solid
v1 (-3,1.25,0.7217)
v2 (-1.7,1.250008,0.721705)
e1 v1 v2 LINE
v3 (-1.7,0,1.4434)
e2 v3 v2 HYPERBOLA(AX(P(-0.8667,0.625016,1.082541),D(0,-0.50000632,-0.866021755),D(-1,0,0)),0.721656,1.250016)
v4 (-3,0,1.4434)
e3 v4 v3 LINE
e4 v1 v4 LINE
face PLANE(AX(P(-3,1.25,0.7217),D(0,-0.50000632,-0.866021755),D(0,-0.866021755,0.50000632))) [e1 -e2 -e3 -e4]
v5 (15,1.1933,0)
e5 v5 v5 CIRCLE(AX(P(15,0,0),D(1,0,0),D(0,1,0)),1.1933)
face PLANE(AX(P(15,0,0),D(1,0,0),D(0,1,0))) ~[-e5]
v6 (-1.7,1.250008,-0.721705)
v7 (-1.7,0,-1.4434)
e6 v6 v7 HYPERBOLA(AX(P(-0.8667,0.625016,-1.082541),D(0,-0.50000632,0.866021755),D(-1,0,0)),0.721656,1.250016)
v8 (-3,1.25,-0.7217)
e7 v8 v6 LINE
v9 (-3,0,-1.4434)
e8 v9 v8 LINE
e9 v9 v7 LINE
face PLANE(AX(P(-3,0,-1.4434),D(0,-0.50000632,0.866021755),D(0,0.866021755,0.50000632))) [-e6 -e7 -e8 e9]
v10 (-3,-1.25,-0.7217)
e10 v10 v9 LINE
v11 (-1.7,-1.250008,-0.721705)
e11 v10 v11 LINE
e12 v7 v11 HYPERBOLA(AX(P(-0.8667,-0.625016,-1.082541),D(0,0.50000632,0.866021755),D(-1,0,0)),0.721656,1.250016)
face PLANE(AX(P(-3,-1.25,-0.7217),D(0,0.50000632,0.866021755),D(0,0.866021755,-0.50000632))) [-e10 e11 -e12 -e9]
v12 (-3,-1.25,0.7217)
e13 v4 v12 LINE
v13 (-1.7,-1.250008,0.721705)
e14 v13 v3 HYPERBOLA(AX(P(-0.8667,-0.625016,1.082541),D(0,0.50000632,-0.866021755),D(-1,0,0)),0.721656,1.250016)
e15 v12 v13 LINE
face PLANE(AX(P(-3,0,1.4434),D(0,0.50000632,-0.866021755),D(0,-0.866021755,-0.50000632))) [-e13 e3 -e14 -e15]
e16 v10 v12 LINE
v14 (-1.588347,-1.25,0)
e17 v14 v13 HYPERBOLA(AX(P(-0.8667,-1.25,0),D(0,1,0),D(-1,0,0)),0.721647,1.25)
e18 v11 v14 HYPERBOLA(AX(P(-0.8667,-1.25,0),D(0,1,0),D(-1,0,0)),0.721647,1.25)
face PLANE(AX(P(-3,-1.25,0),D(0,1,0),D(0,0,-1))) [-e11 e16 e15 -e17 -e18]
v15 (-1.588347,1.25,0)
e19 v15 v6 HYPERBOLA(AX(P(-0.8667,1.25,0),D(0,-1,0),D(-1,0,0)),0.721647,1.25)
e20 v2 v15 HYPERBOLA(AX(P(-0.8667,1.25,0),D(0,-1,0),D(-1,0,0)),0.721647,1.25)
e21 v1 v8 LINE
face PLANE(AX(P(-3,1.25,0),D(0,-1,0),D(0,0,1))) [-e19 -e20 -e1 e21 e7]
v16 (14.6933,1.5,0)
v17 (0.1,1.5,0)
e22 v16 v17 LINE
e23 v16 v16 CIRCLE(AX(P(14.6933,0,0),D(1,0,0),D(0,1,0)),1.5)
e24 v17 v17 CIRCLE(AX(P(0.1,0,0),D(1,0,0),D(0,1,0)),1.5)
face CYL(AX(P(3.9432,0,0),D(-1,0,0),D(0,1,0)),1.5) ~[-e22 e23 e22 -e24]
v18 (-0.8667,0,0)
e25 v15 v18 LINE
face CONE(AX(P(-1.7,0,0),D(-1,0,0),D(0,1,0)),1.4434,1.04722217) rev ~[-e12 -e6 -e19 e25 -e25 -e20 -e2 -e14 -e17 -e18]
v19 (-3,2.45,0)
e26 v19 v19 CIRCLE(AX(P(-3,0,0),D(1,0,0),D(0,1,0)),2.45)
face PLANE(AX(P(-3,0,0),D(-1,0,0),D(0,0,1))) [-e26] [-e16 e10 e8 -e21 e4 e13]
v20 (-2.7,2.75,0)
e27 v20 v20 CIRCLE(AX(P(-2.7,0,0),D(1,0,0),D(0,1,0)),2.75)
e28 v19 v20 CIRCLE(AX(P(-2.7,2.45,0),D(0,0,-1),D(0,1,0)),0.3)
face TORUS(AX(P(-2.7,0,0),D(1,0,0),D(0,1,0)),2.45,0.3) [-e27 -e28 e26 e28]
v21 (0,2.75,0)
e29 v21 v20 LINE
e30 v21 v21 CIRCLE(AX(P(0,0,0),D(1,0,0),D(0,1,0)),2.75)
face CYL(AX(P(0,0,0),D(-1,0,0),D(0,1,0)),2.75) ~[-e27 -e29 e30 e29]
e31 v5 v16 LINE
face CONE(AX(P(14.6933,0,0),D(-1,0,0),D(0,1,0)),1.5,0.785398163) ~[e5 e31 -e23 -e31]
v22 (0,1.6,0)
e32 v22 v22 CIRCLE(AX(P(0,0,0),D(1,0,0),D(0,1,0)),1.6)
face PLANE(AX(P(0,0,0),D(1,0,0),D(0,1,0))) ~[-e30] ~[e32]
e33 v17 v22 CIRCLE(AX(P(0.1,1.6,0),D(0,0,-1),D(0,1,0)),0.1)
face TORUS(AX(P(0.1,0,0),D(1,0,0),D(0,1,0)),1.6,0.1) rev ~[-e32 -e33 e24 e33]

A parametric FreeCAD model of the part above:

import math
import FreeCAD as App
import Part
import Sketcher
from FreeCAD import Vector
Q = App.Units.Quantity


def edges_at(feature, points):
    """Names of the edges that pass closest to the given points."""
    edges = feature.Shape.Edges
    near = lambda p: min(range(len(edges)), key=lambda i: edges[i].distToShape(Part.Vertex(*p))[0])
    return sorted({f"Edge{near(p) + 1}" for p in points})

doc = App.newDocument("Part")
params = doc.addObject("Spreadsheet::Sheet", "Params")
for row, (alias, value) in enumerate([
    ("sketch1_width", "15 mm"),
    ("sketch1_width2", "3 mm"),
    ("sketch1_width3", "1.3 mm"),
    ("sketch1_height", "1.5 mm"),
    ("sketch1_height2", "1.25 mm"),
    ("revolution_angle", "360 deg"),
    ("fillet_radius", "0.3 mm"),
    ("chamfer_size", "0.3067 mm"),
    ("chamfer_size2", "0.3067 mm"),
    ("fillet2_radius", "0.1 mm"),
], start=1):
    params.set(f"A{row}", alias)
    params.set(f"B{row}", "=" + value)
    params.setAlias(f"B{row}", alias)

body = doc.addObject("PartDesign::Body", "Body")

sketch1 = doc.addObject("Sketcher::SketchObject", "Sketch")
body.addObject(sketch1)
sketch1.AttachmentSupport = (doc.XY_Plane, [""])
sketch1.MapMode = "FlatFace"
sketch1.addGeometry(Part.LineSegment(Vector(-1.7, 1.4, 0), Vector(-0.9, 0, 0)), False)
sketch1.addGeometry(Part.LineSegment(Vector(-0.9, 0, 0), Vector(15, 0, 0)), False)
sketch1.addGeometry(Part.LineSegment(Vector(15, 0, 0), Vector(15, 1.5, 0)), False)
sketch1.addGeometry(Part.LineSegment(Vector(15, 1.5, 0), Vector(0, 1.5, 0)), False)
sketch1.addGeometry(Part.LineSegment(Vector(0, 1.5, 0), Vector(0, 2.8, 0)), False)
sketch1.addGeometry(Part.LineSegment(Vector(0, 2.8, 0), Vector(-3, 2.8, 0)), False)
sketch1.addGeometry(Part.LineSegment(Vector(-3, 2.8, 0), Vector(-3, 1.4, 0)), False)
sketch1.addGeometry(Part.LineSegment(Vector(-3, 1.4, 0), Vector(-1.7, 1.4, 0)), False)
sketch1.addConstraint(Sketcher.Constraint("Coincident", 0, 2, 1, 1))
sketch1.addConstraint(Sketcher.Constraint("Coincident", 1, 2, 2, 1))
sketch1.addConstraint(Sketcher.Constraint("Coincident", 2, 2, 3, 1))
sketch1.addConstraint(Sketcher.Constraint("Coincident", 3, 2, 4, 1))
sketch1.addConstraint(Sketcher.Constraint("Coincident", 4, 2, 5, 1))
sketch1.addConstraint(Sketcher.Constraint("Coincident", 5, 2, 6, 1))
sketch1.addConstraint(Sketcher.Constraint("Coincident", 6, 2, 7, 1))
sketch1.addConstraint(Sketcher.Constraint("Coincident", 7, 2, 0, 1))
sketch1.addConstraint(Sketcher.Constraint("Horizontal", 1))
sketch1.addConstraint(Sketcher.Constraint("Vertical", 2))
sketch1.addConstraint(Sketcher.Constraint("Horizontal", 3))
sketch1.addConstraint(Sketcher.Constraint("Vertical", 4))
sketch1.addConstraint(Sketcher.Constraint("Horizontal", 5))
sketch1.addConstraint(Sketcher.Constraint("Vertical", 6))
sketch1.addConstraint(Sketcher.Constraint("Horizontal", 7))
sketch1.addConstraint(Sketcher.Constraint("PointOnObject", 0, 2, -1))
sketch1.addConstraint(Sketcher.Constraint("PointOnObject", 3, 2, -2))
sketch1.addConstraint(Sketcher.Constraint("DistanceX", 3, 2, 3, 1, Q("15 mm")))
sketch1.addConstraint(Sketcher.Constraint("DistanceX", 5, 2, 5, 1, Q("3 mm")))
sketch1.addConstraint(Sketcher.Constraint("DistanceX", 7, 1, 7, 2, Q("1.3 mm")))
sketch1.addConstraint(Sketcher.Constraint("DistanceY", 2, 1, 2, 2, Q("1.5 mm")))
sketch1.addConstraint(Sketcher.Constraint("DistanceY", 4, 1, 4, 2, Q("1.25 mm")))
sketch1.addConstraint(Sketcher.Constraint("DistanceX", 1, 1, 1, 2, Q("15.8667 mm")))
sketch1.addConstraint(Sketcher.Constraint("DistanceY", 6, 2, 6, 1, Q("1.3066 mm")))
sketch1.setExpression("Constraints[17]", "Params.sketch1_width")
sketch1.setExpression("Constraints[18]", "Params.sketch1_width2")
sketch1.setExpression("Constraints[19]", "Params.sketch1_width3")
sketch1.setExpression("Constraints[20]", "Params.sketch1_height")
sketch1.setExpression("Constraints[21]", "Params.sketch1_height2")
revolution = doc.addObject("PartDesign::Revolution", "Revolution")
body.addObject(revolution)
revolution.Profile = sketch1
revolution.ReferenceAxis = (sketch1, ["H_Axis"])
revolution.setExpression("Angle", "Params.revolution_angle")

sketch2 = doc.addObject("Sketcher::SketchObject", "Sketch001")
body.addObject(sketch2)
sketch2.AttachmentSupport = (doc.YZ_Plane, [""])
sketch2.MapMode = "FlatFace"
sketch2.AttachmentOffset = App.Placement(Vector(0, 0, -3), App.Rotation())
sketch2.addGeometry(Part.LineSegment(Vector(1.2, 0.7, 0), Vector(0, 1.4, 0)), False)
sketch2.addGeometry(Part.ArcOfCircle(Part.Circle(Vector(0, 0, 0), Vector(0, 0, 1), 1.4), math.radians(30), math.radians(90)), False)
sketch2.addGeometry(Part.ArcOfCircle(Part.Circle(Vector(0, 0, 0), Vector(0, 0, 1), 1.4), math.radians(90), math.radians(150)), False)
sketch2.addGeometry(Part.LineSegment(Vector(0, 1.4, 0), Vector(-1.2, 0.7, 0)), False)
sketch2.addGeometry(Part.ArcOfCircle(Part.Circle(Vector(0, 0, 0), Vector(0, 0, 1), 1.4), math.radians(-30), math.radians(30)), False)
sketch2.addGeometry(Part.LineSegment(Vector(1.2, 0.7, 0), Vector(1.2, -0.7, 0)), False)
sketch2.addGeometry(Part.LineSegment(Vector(-1.2, 0.7, 0), Vector(-1.2, -0.7, 0)), False)
sketch2.addGeometry(Part.ArcOfCircle(Part.Circle(Vector(0, 0, 0), Vector(0, 0, 1), 1.4), math.radians(150), math.radians(210)), False)
sketch2.addGeometry(Part.LineSegment(Vector(-1.2, -0.7, 0), Vector(0, -1.4, 0)), False)
sketch2.addGeometry(Part.ArcOfCircle(Part.Circle(Vector(0, 0, 0), Vector(0, 0, 1), 1.4), math.radians(-150), math.radians(-90)), False)
sketch2.addGeometry(Part.ArcOfCircle(Part.Circle(Vector(0, 0, 0), Vector(0, 0, 1), 1.4), math.radians(-90), math.radians(-30)), False)
sketch2.addGeometry(Part.LineSegment(Vector(0, -1.4, 0), Vector(1.2, -0.7, 0)), False)
sketch2.addConstraint(Sketcher.Constraint("Coincident", 0, 1, 1, 1))
sketch2.addConstraint(Sketcher.Constraint("Coincident", 1, 2, 0, 2))
sketch2.addConstraint(Sketcher.Constraint("Coincident", 2, 1, 3, 1))
sketch2.addConstraint(Sketcher.Constraint("Coincident", 3, 2, 2, 2))
sketch2.addConstraint(Sketcher.Constraint("Coincident", 4, 1, 5, 2))
sketch2.addConstraint(Sketcher.Constraint("Coincident", 5, 1, 4, 2))
sketch2.addConstraint(Sketcher.Constraint("Coincident", 6, 1, 7, 1))
sketch2.addConstraint(Sketcher.Constraint("Coincident", 7, 2, 6, 2))
sketch2.addConstraint(Sketcher.Constraint("Coincident", 8, 1, 9, 1))
sketch2.addConstraint(Sketcher.Constraint("Coincident", 9, 2, 8, 2))
sketch2.addConstraint(Sketcher.Constraint("Coincident", 10, 1, 11, 1))
sketch2.addConstraint(Sketcher.Constraint("Coincident", 11, 2, 10, 2))
sketch2.addConstraint(Sketcher.Constraint("Vertical", 5))
sketch2.addConstraint(Sketcher.Constraint("Vertical", 6))
sketch2.addConstraint(Sketcher.Constraint("Coincident", 1, 3, -1, 1))
sketch2.addConstraint(Sketcher.Constraint("Coincident", 2, 3, -1, 1))
sketch2.addConstraint(Sketcher.Constraint("Coincident", 4, 3, -1, 1))
sketch2.addConstraint(Sketcher.Constraint("Coincident", 7, 3, -1, 1))
sketch2.addConstraint(Sketcher.Constraint("Coincident", 9, 3, -1, 1))
sketch2.addConstraint(Sketcher.Constraint("Coincident", 10, 3, -1, 1))
sketch2.addConstraint(Sketcher.Constraint("Coincident", 2, 1, 1, 2))
sketch2.addConstraint(Sketcher.Constraint("Coincident", 5, 1, 0, 1))
sketch2.addConstraint(Sketcher.Constraint("Coincident", 6, 1, 3, 2))
sketch2.addConstraint(Sketcher.Constraint("Coincident", 8, 1, 7, 2))
sketch2.addConstraint(Sketcher.Constraint("Coincident", 10, 1, 9, 2))
sketch2.addConstraint(Sketcher.Constraint("PointOnObject", 1, 2, -2))
sketch2.addConstraint(Sketcher.Constraint("PointOnObject", 9, 2, -2))
sketch2.addConstraint(Sketcher.Constraint("Parallel", 0, 8))
sketch2.addConstraint(Sketcher.Constraint("Parallel", 3, 11))
sketch2.addConstraint(Sketcher.Constraint("Angle", 0, Q("149.9996 deg")))
sketch2.addConstraint(Sketcher.Constraint("Radius", 1, Q("1.4434 mm")))
pad1 = doc.addObject("PartDesign::Pad", "Pad")
body.addObject(pad1)
pad1.Profile = sketch2
pad1.Type = "UpToFirst"
doc.recompute()

fillet = doc.addObject("PartDesign::Fillet", "Fillet")
body.addObject(fillet)
fillet.Base = (pad1, edges_at(pad1, [(-3, -2.75, 0)]))
fillet.setExpression("Radius", "Params.fillet_radius")
doc.recompute()

chamfer = doc.addObject("PartDesign::Chamfer", "Chamfer")
body.addObject(chamfer)
chamfer.Base = (fillet, edges_at(fillet, [(15, -1.5, 0)]))
chamfer.ChamferType = "Two distances"
chamfer.setExpression("Size", "Params.chamfer_size")
chamfer.setExpression("Size2", "Params.chamfer_size2")
doc.recompute()

fillet2 = doc.addObject("PartDesign::Fillet", "Fillet001")
body.addObject(fillet2)
fillet2.Base = (chamfer, edges_at(chamfer, [(0, -1.5, 0)]))
fillet2.setExpression("Radius", "Params.fillet2_radius")

doc.recompute()
